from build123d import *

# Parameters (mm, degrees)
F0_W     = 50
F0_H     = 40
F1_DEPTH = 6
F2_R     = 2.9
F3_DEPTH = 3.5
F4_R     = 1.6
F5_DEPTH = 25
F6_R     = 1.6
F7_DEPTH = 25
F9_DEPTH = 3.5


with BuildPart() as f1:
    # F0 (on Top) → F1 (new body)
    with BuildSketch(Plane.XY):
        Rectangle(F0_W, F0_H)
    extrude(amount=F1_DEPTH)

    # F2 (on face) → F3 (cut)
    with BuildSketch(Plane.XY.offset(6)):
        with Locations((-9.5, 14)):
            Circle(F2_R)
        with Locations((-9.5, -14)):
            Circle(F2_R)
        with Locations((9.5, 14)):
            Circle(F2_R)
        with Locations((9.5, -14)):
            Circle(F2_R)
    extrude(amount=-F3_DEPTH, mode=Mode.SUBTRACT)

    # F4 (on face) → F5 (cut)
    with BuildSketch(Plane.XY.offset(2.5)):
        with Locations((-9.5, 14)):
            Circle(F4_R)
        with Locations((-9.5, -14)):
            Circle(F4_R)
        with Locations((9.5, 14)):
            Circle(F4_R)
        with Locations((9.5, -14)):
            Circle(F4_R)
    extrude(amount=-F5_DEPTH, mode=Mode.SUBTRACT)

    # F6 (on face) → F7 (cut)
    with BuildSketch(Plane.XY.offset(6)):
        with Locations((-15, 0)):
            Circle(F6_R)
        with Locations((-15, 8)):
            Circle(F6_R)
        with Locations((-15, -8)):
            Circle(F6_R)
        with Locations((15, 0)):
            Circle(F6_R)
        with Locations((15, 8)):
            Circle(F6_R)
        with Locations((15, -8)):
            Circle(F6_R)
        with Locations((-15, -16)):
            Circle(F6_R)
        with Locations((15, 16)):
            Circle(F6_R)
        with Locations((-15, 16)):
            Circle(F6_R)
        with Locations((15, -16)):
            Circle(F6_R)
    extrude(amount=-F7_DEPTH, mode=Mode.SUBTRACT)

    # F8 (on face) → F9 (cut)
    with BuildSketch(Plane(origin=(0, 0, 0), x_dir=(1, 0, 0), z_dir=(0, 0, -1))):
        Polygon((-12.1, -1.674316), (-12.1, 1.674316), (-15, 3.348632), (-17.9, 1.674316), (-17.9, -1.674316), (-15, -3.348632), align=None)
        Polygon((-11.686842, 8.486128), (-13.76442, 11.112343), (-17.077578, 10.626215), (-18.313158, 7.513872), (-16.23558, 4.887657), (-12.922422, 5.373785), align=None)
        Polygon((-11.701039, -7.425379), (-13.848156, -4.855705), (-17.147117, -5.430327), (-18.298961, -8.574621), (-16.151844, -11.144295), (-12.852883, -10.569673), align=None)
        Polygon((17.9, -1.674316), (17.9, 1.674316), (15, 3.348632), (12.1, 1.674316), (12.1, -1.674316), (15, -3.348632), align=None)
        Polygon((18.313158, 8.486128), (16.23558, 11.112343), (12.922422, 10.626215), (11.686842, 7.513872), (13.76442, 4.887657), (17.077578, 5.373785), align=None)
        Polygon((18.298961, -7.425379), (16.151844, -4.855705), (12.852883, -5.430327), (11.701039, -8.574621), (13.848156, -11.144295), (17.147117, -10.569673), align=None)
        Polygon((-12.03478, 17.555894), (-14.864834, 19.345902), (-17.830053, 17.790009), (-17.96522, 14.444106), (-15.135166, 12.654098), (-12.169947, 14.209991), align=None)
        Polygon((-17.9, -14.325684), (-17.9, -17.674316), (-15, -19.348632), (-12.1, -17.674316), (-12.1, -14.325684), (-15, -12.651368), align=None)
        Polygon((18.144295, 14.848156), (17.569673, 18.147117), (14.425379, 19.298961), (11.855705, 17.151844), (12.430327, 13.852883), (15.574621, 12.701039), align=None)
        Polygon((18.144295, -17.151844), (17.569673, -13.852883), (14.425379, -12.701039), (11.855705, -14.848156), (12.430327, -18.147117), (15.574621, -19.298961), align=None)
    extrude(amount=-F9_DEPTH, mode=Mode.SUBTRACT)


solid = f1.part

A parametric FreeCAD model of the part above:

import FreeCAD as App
import Part
import Sketcher

V = App.Vector
Q = App.Units.Quantity


def add_polygon(sketch, points):
    """Adds a closed chain of lines whose ends are joined by coincident constraints."""
    first, n = sketch.GeometryCount, len(points)
    for a, b in zip(points, points[1:] + points[:1]):
        sketch.addGeometry(Part.LineSegment(App.Vector(*a, 0), App.Vector(*b, 0)), False)
    for i in range(n):
        sketch.addConstraint(Sketcher.Constraint("Coincident", first + i, 2, first + (i + 1) % n, 1))

doc = App.newDocument("Part")
body = doc.addObject("PartDesign::Body", "Body")

sketch1 = doc.addObject("Sketcher::SketchObject", "Sketch")
body.addObject(sketch1)
sketch1.AttachmentSupport = (doc.XY_Plane, [""])
sketch1.MapMode = "FlatFace"
add_polygon(sketch1, [(-25, 20), (-25, -20), (25, -20), (25, 20)])
sketch1.addConstraint(Sketcher.Constraint("Vertical", 0))
sketch1.addConstraint(Sketcher.Constraint("Horizontal", 1))
sketch1.addConstraint(Sketcher.Constraint("Vertical", 2))
sketch1.addConstraint(Sketcher.Constraint("Horizontal", 3))
sketch1.addConstraint(Sketcher.Constraint("Symmetric", 0, 2, 2, 2, -1, 1))
sketch1.addConstraint(Sketcher.Constraint("DistanceX", 1, 1, 1, 2, 50.0))
sketch1.addConstraint(Sketcher.Constraint("DistanceY", 0, 2, 0, 1, 40.0))
pad1 = doc.addObject("PartDesign::Pad", "Pad")
body.addObject(pad1)
pad1.Profile = sketch1
pad1.Length = 6

sketch2 = doc.addObject("Sketcher::SketchObject", "Sketch001")
body.addObject(sketch2)
sketch2.AttachmentSupport = (doc.XY_Plane, [""])
sketch2.MapMode = "FlatFace"
sketch2.AttachmentOffset = App.Placement(V(0, 0, 6), App.Rotation())
sketch2.addGeometry(Part.Circle(V(-9.5, 14, 0), V(0, 0, 1), 2.9), False)
sketch2.addGeometry(Part.Circle(V(-9.5, -14, 0), V(0, 0, 1), 2.9), False)
sketch2.addGeometry(Part.Circle(V(9.5, 14, 0), V(0, 0, 1), 2.9), False)
sketch2.addGeometry(Part.Circle(V(9.5, -14, 0), V(0, 0, 1), 2.9), False)
sketch2.addConstraint(Sketcher.Constraint("Equal", 0, 1))
sketch2.addConstraint(Sketcher.Constraint("Equal", 1, 2))
sketch2.addConstraint(Sketcher.Constraint("Equal", 2, 3))
sketch2.addConstraint(Sketcher.Constraint("Symmetric", 1, 3, 2, 3, -1, 1))
sketch2.addConstraint(Sketcher.Constraint("Symmetric", 0, 3, 3, 3, -1, 1))
sketch2.addConstraint(Sketcher.Constraint("Symmetric", 0, 3, 2, 3, -2))
sketch2.addConstraint(Sketcher.Constraint("Diameter", 0, 5.8))
sketch2.addConstraint(Sketcher.Constraint("DistanceY", -1, 1, 0, 3, 14.0))
sketch2.addConstraint(Sketcher.Constraint("DistanceX", 0, 3, 2, 3, 19.0))
pocket1 = doc.addObject("PartDesign::Pocket", "Pocket")
body.addObject(pocket1)
pocket1.Profile = sketch2
pocket1.Length = 3.5

sketch3 = doc.addObject("Sketcher::SketchObject", "Sketch002")
body.addObject(sketch3)
sketch3.AttachmentSupport = (doc.XY_Plane, [""])
sketch3.MapMode = "FlatFace"
sketch3.AttachmentOffset = App.Placement(V(0, 0, 2.5), App.Rotation())
sketch3.addGeometry(Part.Circle(V(-9.5, 14, 0), V(0, 0, 1), 1.6), False)
sketch3.addGeometry(Part.Circle(V(-9.5, -14, 0), V(0, 0, 1), 1.6), False)
sketch3.addGeometry(Part.Circle(V(9.5, 14, 0), V(0, 0, 1), 1.6), False)
sketch3.addGeometry(Part.Circle(V(9.5, -14, 0), V(0, 0, 1), 1.6), False)
sketch3.addConstraint(Sketcher.Constraint("Equal", 0, 1))
sketch3.addConstraint(Sketcher.Constraint("Equal", 1, 2))
sketch3.addConstraint(Sketcher.Constraint("Equal", 2, 3))
sketch3.addConstraint(Sketcher.Constraint("Symmetric", 1, 3, 2, 3, -1, 1))
sketch3.addConstraint(Sketcher.Constraint("Symmetric", 0, 3, 3, 3, -1, 1))
sketch3.addConstraint(Sketcher.Constraint("Symmetric", 0, 3, 2, 3, -2))
sketch3.addConstraint(Sketcher.Constraint("Diameter", 0, 3.2))
sketch3.addConstraint(Sketcher.Constraint("DistanceY", -1, 1, 0, 3, 14.0))
sketch3.addConstraint(Sketcher.Constraint("DistanceX", 0, 3, 2, 3, 19.0))
pocket2 = doc.addObject("PartDesign::Pocket", "Pocket001")
body.addObject(pocket2)
pocket2.Profile = sketch3
pocket2.Length = 25

sketch4 = doc.addObject("Sketcher::SketchObject", "Sketch003")
body.addObject(sketch4)
sketch4.AttachmentSupport = (doc.XY_Plane, [""])
sketch4.MapMode = "FlatFace"
sketch4.AttachmentOffset = App.Placement(V(0, 0, 6), App.Rotation())
sketch4.addGeometry(Part.Circle(V(-15, 0, 0), V(0, 0, 1), 1.6), False)
sketch4.addGeometry(Part.Circle(V(-15, 8, 0), V(0, 0, 1), 1.6), False)
sketch4.addGeometry(Part.Circle(V(-15, -8, 0), V(0, 0, 1), 1.6), False)
sketch4.addGeometry(Part.Circle(V(15, 0, 0), V(0, 0, 1), 1.6), False)
sketch4.addGeometry(Part.Circle(V(15, 8, 0), V(0, 0, 1), 1.6), False)
sketch4.addGeometry(Part.Circle(V(15, -8, 0), V(0, 0, 1), 1.6), False)
sketch4.addGeometry(Part.Circle(V(-15, -16, 0), V(0, 0, 1), 1.6), False)
sketch4.addGeometry(Part.Circle(V(15, 16, 0), V(0, 0, 1), 1.6), False)
sketch4.addGeometry(Part.Circle(V(-15, 16, 0), V(0, 0, 1), 1.6), False)
sketch4.addGeometry(Part.Circle(V(15, -16, 0), V(0, 0, 1), 1.6), False)
sketch4.addConstraint(Sketcher.Constraint("Equal", 0, 1))
sketch4.addConstraint(Sketcher.Constraint("Equal", 1, 2))
sketch4.addConstraint(Sketcher.Constraint("Equal", 2, 3))
sketch4.addConstraint(Sketcher.Constraint("Equal", 3, 4))
sketch4.addConstraint(Sketcher.Constraint("Equal", 4, 5))
sketch4.addConstraint(Sketcher.Constraint("Equal", 5, 6))
sketch4.addConstraint(Sketcher.Constraint("Equal", 6, 7))
sketch4.addConstraint(Sketcher.Constraint("Equal", 7, 8))
sketch4.addConstraint(Sketcher.Constraint("Equal", 8, 9))
sketch4.addConstraint(Sketcher.Constraint("Symmetric", 0, 3, 3, 3, -1, 1))
sketch4.addConstraint(Sketcher.Constraint("Symmetric", 2, 3, 4, 3, -1, 1))
sketch4.addConstraint(Sketcher.Constraint("Symmetric", 1, 3, 5, 3, -1, 1))
sketch4.addConstraint(Sketcher.Constraint("Symmetric", 6, 3, 7, 3, -1, 1))
sketch4.addConstraint(Sketcher.Constraint("Symmetric", 8, 3, 9, 3, -1, 1))
sketch4.addConstraint(Sketcher.Constraint("Symmetric", 1, 3, 4, 3, -2))
sketch4.addConstraint(Sketcher.Constraint("Symmetric", 7, 3, 8, 3, -2))
sketch4.addConstraint(Sketcher.Constraint("PointOnObject", 0, 3, -1))
sketch4.addConstraint(Sketcher.Constraint("Vertical", 0, 3, 1, 3))
sketch4.addConstraint(Sketcher.Constraint("Vertical", 2, 3, 6, 3))
sketch4.addConstraint(Sketcher.Constraint("Diameter", 0, 3.2))
sketch4.addConstraint(Sketcher.Constraint("DistanceX", 0, 3, -1, 1, 15.0))
sketch4.addConstraint(Sketcher.Constraint("DistanceY", -1, 1, 1, 3, 8.0))
sketch4.addConstraint(Sketcher.Constraint("DistanceY", 6, 3, -1, 1, 16.0))
pocket3 = doc.addObject("PartDesign::Pocket", "Pocket002")
body.addObject(pocket3)
pocket3.Profile = sketch4
pocket3.Length = 25

sketch5 = doc.addObject("Sketcher::SketchObject", "Sketch004")
body.addObject(sketch5)
sketch5.AttachmentSupport = (doc.XY_Plane, [""])
sketch5.MapMode = "FlatFace"
add_polygon(sketch5, [(-12.1, 1.7), (-12.1, -1.7), (-15, -3.3), (-17.9, -1.7), (-17.9, 1.7), (-15, 3.3)])
add_polygon(sketch5, [(-11.7, -8.5), (-13.8, -11.1), (-17.1, -10.6), (-18.3, -7.5), (-16.2, -4.9), (-12.9, -5.4)])
add_polygon(sketch5, [(-11.7, 7.4), (-13.8, 4.9), (-17.1, 5.4), (-18.3, 8.6), (-16.2, 11.1), (-12.9, 10.6)])
add_polygon(sketch5, [(17.9, 1.7), (17.9, -1.7), (15, -3.3), (12.1, -1.7), (12.1, 1.7), (15, 3.3)])
add_polygon(sketch5, [(18.3, -8.5), (16.2, -11.1), (12.9, -10.6), (11.7, -7.5), (13.8, -4.9), (17.1, -5.4)])
add_polygon(sketch5, [(18.3, 7.4), (16.2, 4.9), (12.9, 5.4), (11.7, 8.6), (13.8, 11.1), (17.1, 10.6)])
add_polygon(sketch5, [(-12, -17.6), (-14.9, -19.3), (-17.8, -17.8), (-18, -14.4), (-15.1, -12.7), (-12.2, -14.2)])
add_polygon(sketch5, [(-17.9, 14.3), (-17.9, 17.7), (-15, 19.3), (-12.1, 17.7), (-12.1, 14.3), (-15, 12.7)])
add_polygon(sketch5, [(18.1, -14.8), (17.6, -18.1), (14.4, -19.3), (11.9, -17.2), (12.4, -13.9), (15.6, -12.7)])
add_polygon(sketch5, [(18.1, 17.2), (17.6, 13.9), (14.4, 12.7), (11.9, 14.8), (12.4, 18.1), (15.6, 19.3)])
sketch5.addConstraint(Sketcher.Constraint("Vertical", 0))
sketch5.addConstraint(Sketcher.Constraint("Vertical", 3))
sketch5.addConstraint(Sketcher.Constraint("Vertical", 18))
sketch5.addConstraint(Sketcher.Constraint("Vertical", 21))
sketch5.addConstraint(Sketcher.Constraint("Vertical", 42))
sketch5.addConstraint(Sketcher.Constraint("Vertical", 45))
sketch5.addConstraint(Sketcher.Constraint("Symmetric", 3, 2, 18, 2, -1, 1))
sketch5.addConstraint(Sketcher.Constraint("Symmetric", 4, 2, 19, 2, -1, 1))
sketch5.addConstraint(Sketcher.Constraint("Symmetric", 5, 2, 20, 2, -1, 1))
sketch5.addConstraint(Sketcher.Constraint("Symmetric", 1, 2, 22, 2, -1, 1))
sketch5.addConstraint(Sketcher.Constraint("Symmetric", 1, 2, 19, 2, -2))
sketch5.addConstraint(Sketcher.Constraint("Parallel", 1, 4))
sketch5.addConstraint(Sketcher.Constraint("Parallel", 2, 5))
sketch5.addConstraint(Sketcher.Constraint("Parallel", 6, 9))
sketch5.addConstraint(Sketcher.Constraint("Parallel", 7, 10))
sketch5.addConstraint(Sketcher.Constraint("Parallel", 8, 11))
sketch5.addConstraint(Sketcher.Constraint("Parallel", 12, 15))
sketch5.addConstraint(Sketcher.Constraint("Parallel", 13, 16))
sketch5.addConstraint(Sketcher.Constraint("Parallel", 14, 17))
sketch5.addConstraint(Sketcher.Constraint("Parallel", 19, 22))
sketch5.addConstraint(Sketcher.Constraint("Parallel", 20, 23))
sketch5.addConstraint(Sketcher.Constraint("Parallel", 9, 24))
sketch5.addConstraint(Sketcher.Constraint("Parallel", 10, 25))
sketch5.addConstraint(Sketcher.Constraint("Parallel", 11, 26))
sketch5.addConstraint(Sketcher.Constraint("Parallel", 24, 27))
sketch5.addConstraint(Sketcher.Constraint("Parallel", 25, 28))
sketch5.addConstraint(Sketcher.Constraint("Parallel", 26, 29))
sketch5.addConstraint(Sketcher.Constraint("Parallel", 15, 30))
sketch5.addConstraint(Sketcher.Constraint("Parallel", 16, 31))
sketch5.addConstraint(Sketcher.Constraint("Parallel", 17, 32))
sketch5.addConstraint(Sketcher.Constraint("Parallel", 30, 33))
sketch5.addConstraint(Sketcher.Constraint("Parallel", 31, 34))
sketch5.addConstraint(Sketcher.Constraint("Parallel", 32, 35))
sketch5.addConstraint(Sketcher.Constraint("Parallel", 36, 39))
sketch5.addConstraint(Sketcher.Constraint("Parallel", 37, 40))
sketch5.addConstraint(Sketcher.Constraint("Parallel", 38, 41))
sketch5.addConstraint(Sketcher.Constraint("Parallel", 22, 43))
sketch5.addConstraint(Sketcher.Constraint("Parallel", 23, 44))
sketch5.addConstraint(Sketcher.Constraint("Parallel", 43, 46))
sketch5.addConstraint(Sketcher.Constraint("Parallel", 44, 47))
sketch5.addConstraint(Sketcher.Constraint("Perpendicular", 34, 48))
sketch5.addConstraint(Sketcher.Constraint("Perpendicular", 35, 49))
sketch5.addConstraint(Sketcher.Constraint("Perpendicular", 33, 50))
sketch5.addConstraint(Sketcher.Constraint("Parallel", 48, 51))
sketch5.addConstraint(Sketcher.Constraint("Parallel", 49, 52))
sketch5.addConstraint(Sketcher.Constraint("Parallel", 50, 53))
sketch5.addConstraint(Sketcher.Constraint("Parallel", 51, 54))
sketch5.addConstraint(Sketcher.Constraint("Parallel", 52, 55))
sketch5.addConstraint(Sketcher.Constraint("Parallel", 53, 56))
sketch5.addConstraint(Sketcher.Constraint("Parallel", 54, 57))
sketch5.addConstraint(Sketcher.Constraint("Parallel", 55, 58))
sketch5.addConstraint(Sketcher.Constraint("Parallel", 56, 59))
sketch5.addConstraint(Sketcher.Constraint("Horizontal", 0, 2, 2, 2))
sketch5.addConstraint(Sketcher.Constraint("Horizontal", 3, 2, 5, 2))
sketch5.addConstraint(Sketcher.Constraint("Horizontal", 6, 2, 24, 2))
sketch5.addConstraint(Sketcher.Constraint("Horizontal", 7, 2, 25, 2))
sketch5.addConstraint(Sketcher.Constraint("Horizontal", 8, 2, 26, 2))
sketch5.addConstraint(Sketcher.Constraint("Horizontal", 9, 2, 27, 2))
sketch5.addConstraint(Sketcher.Constraint("Horizontal", 10, 2, 28, 2))
sketch5.addConstraint(Sketcher.Constraint("Horizontal", 12, 2, 30, 2))
sketch5.addConstraint(Sketcher.Constraint("Horizontal", 13, 2, 31, 2))
sketch5.addConstraint(Sketcher.Constraint("Horizontal", 14, 2, 32, 2))
sketch5.addConstraint(Sketcher.Constraint("Horizontal", 15, 2, 33, 2))
sketch5.addConstraint(Sketcher.Constraint("Horizontal", 16, 2, 34, 2))
sketch5.addConstraint(Sketcher.Constraint("Horizontal", 42, 2, 44, 2))
sketch5.addConstraint(Sketcher.Constraint("Horizontal", 45, 2, 47, 2))
sketch5.addConstraint(Sketcher.Constraint("Vertical", 3, 2, 42, 2))
sketch5.addConstraint(Sketcher.Constraint("Vertical", 4, 2, 43, 2))
sketch5.addConstraint(Sketcher.Constraint("Vertical", 48, 2, 54, 2))
sketch5.addConstraint(Sketcher.Constraint("Vertical", 49, 2, 55, 2))
sketch5.addConstraint(Sketcher.Constraint("Vertical", 50, 2, 56, 2))
sketch5.addConstraint(Sketcher.Constraint("Vertical", 51, 2, 57, 2))
sketch5.addConstraint(Sketcher.Constraint("Vertical", 52, 2, 58, 2))
sketch5.addConstraint(Sketcher.Constraint("Equal", 21, 42))
sketch5.addConstraint(Sketcher.Constraint("Equal", 5, 6))
sketch5.addConstraint(Sketcher.Constraint("Equal", 6, 7))
sketch5.addConstraint(Sketcher.Constraint("Equal", 7, 8))
sketch5.addConstraint(Sketcher.Constraint("Equal", 8, 9))
sketch5.addConstraint(Sketcher.Constraint("Equal", 11, 12))
sketch5.addConstraint(Sketcher.Constraint("Equal", 12, 13))
sketch5.addConstraint(Sketcher.Constraint("Equal", 13, 14))
sketch5.addConstraint(Sketcher.Constraint("Equal", 14, 15))
sketch5.addConstraint(Sketcher.Constraint("Equal", 35, 36))
sketch5.addConstraint(Sketcher.Constraint("Equal", 36, 37))
sketch5.addConstraint(Sketcher.Constraint("Equal", 37, 38))
sketch5.addConstraint(Sketcher.Constraint("Equal", 38, 39))
sketch5.addConstraint(Sketcher.Constraint("Equal", 47, 48))
sketch5.addConstraint(Sketcher.Constraint("Equal", 48, 49))
sketch5.addConstraint(Sketcher.Constraint("Equal", 49, 50))
sketch5.addConstraint(Sketcher.Constraint("Equal", 50, 51))
sketch5.addConstraint(Sketcher.Constraint("Angle", 1, Q("-149.999997 deg")))
sketch5.addConstraint(Sketcher.Constraint("DistanceX", 1, 2, -1, 1, 15.0))
sketch5.addConstraint(Sketcher.Constraint("DistanceX", 0, 2, -1, 1, 12.1))
sketch5.addConstraint(Sketcher.Constraint("DistanceX", 7, 2, 9, 2, 0.841998))
sketch5.addConstraint(Sketcher.Constraint("DistanceY", 0, 2, 0, 1, 3.348632))
sketch5.addConstraint(Sketcher.Constraint("DistanceY", 36, 2, -1, 1, 19.345902))
sketch5.addConstraint(Sketcher.Constraint("DistanceY", 7, 2, 2, 2, 8.951899))
sketch5.addConstraint(Sketcher.Constraint("DistanceX", 38, 2, 6, 2, 4.2008))
sketch5.addConstraint(Sketcher.Constraint("DistanceX", 49, 2, 24, 2, 1.810201))
sketch5.addConstraint(Sketcher.Constraint("DistanceY", 50, 2, 24, 2, 6.039501))
sketch5.addConstraint(Sketcher.Constraint("DistanceX", 25, 2, 52, 2, 2.652199))
sketch5.addConstraint(Sketcher.Constraint("DistanceX", 6, 2, -1, 1, 13.76442))
sketch5.addConstraint(Sketcher.Constraint("DistanceX", 8, 2, -1, 1, 18.313158))
sketch5.addConstraint(Sketcher.Constraint("DistanceX", 9, 2, -1, 1, 16.23558))
sketch5.addConstraint(Sketcher.Constraint("DistanceX", 14, 2, -1, 1, 18.298961))
sketch5.addConstraint(Sketcher.Constraint("DistanceY", -1, 1, 14, 2, 8.574621))
sketch5.addConstraint(Sketcher.Constraint("DistanceX", 17, 2, -1, 1, 11.701039))
sketch5.addConstraint(Sketcher.Constraint("DistanceX", -1, 1, 24, 2, 16.23558))
sketch5.addConstraint(Sketcher.Constraint("DistanceX", -1, 1, 32, 2, 11.701039))
sketch5.addConstraint(Sketcher.Constraint("DistanceY", 37, 2, -1, 1, 17.790009))
sketch5.addConstraint(Sketcher.Constraint("DistanceY", 40, 2, -1, 1, 14.209991))
sketch5.addConstraint(Sketcher.Constraint("DistanceX", 41, 2, -1, 1, 12.03478))
sketch5.addConstraint(Sketcher.Constraint("DistanceY", -1, 1, 43, 2, 19.348632))
sketch5.addConstraint(Sketcher.Constraint("DistanceY", 49, 2, -1, 1, 19.298961))
sketch5.addConstraint(Sketcher.Constraint("DistanceY", -1, 1, 55, 2, 12.701039))
pocket4 = doc.addObject("PartDesign::Pocket", "Pocket003")
body.addObject(pocket4)
pocket4.Profile = sketch5
pocket4.Length = 3.5
pocket4.Reversed = True

doc.recompute()
